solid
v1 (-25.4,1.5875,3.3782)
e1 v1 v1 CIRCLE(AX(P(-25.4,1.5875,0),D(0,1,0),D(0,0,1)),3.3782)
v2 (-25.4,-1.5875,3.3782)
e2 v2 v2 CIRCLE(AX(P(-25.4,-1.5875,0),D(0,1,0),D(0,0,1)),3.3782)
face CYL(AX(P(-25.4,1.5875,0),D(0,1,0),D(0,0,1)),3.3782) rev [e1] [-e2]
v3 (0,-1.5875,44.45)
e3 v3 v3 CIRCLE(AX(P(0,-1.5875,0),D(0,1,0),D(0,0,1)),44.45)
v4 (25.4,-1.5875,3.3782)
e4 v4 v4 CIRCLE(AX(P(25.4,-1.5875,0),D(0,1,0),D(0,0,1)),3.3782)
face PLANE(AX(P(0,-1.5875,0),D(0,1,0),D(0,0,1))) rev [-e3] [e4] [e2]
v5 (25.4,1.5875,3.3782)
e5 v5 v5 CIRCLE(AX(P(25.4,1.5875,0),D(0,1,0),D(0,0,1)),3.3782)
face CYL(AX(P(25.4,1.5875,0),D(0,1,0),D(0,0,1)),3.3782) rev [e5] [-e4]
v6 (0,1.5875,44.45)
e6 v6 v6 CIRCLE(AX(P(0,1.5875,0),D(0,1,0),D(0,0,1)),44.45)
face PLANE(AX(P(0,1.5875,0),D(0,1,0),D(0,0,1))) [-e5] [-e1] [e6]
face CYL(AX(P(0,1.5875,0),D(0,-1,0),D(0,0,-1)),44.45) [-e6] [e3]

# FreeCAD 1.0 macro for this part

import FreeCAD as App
import Part
import Sketcher

V = App.Vector
Q = App.Units.Quantity

doc = App.newDocument("Part")
body = doc.addObject("PartDesign::Body", "Body")

# Sketch on XZ plane
sketch1 = doc.addObject("Sketcher::SketchObject", "Sketch")
body.addObject(sketch1)
sketch1.AttachmentSupport = (doc.XZ_Plane, [""])
sketch1.MapMode = "FlatFace"
sketch1.addGeometry(Part.Circle(V(0, 0, 0), V(0, 0, 1), 44.45), False)
sketch1.addConstraint(Sketcher.Constraint("Coincident", 0, 3, -1, 1))
sketch1.addConstraint(Sketcher.Constraint("Diameter", 0, Q("3.5 in")))
pad1 = doc.addObject("PartDesign::Pad", "Pad")
body.addObject(pad1)
pad1.Profile = sketch1
pad1.Length = Q("0.125 in")
pad1.Midplane = True

# Sketch on XZ plane
sketch2 = doc.addObject("Sketcher::SketchObject", "Sketch001")
body.addObject(sketch2)
sketch2.AttachmentSupport = (doc.XZ_Plane, [""])
sketch2.MapMode = "FlatFace"
sketch2.AttachmentOffset = App.Placement(V(0, 0, -0.0625 * 25.4), App.Rotation())
sketch2.addGeometry(Part.Circle(V(25.4, 0, 0), V(0, 0, 1), 3.3782), False)
sketch2.addGeometry(Part.Circle(V(-25.4, 0, 0), V(0, 0, 1), 3.3782), False)
sketch2.addConstraint(Sketcher.Constraint("Equal", 0, 1))
sketch2.addConstraint(Sketcher.Constraint("Symmetric", 0, 3, 1, 3, -1, 1))
sketch2.addConstraint(Sketcher.Constraint("PointOnObject", 0, 3, -1))
sketch2.addConstraint(Sketcher.Constraint("Diameter", 0, Q("0.266 in")))
sketch2.addConstraint(Sketcher.Constraint("DistanceX", -1, 1, 0, 3, Q("1 in")))
doc.recompute()
hole = doc.addObject("PartDesign::Hole", "Hole")
body.addObject(hole)
hole.Profile = sketch2
hole.ThreadType = "None"
hole.Diameter = Q("0.266 in")
hole.DepthType = "ThroughAll"
hole.Reversed = True

doc.recompute()
